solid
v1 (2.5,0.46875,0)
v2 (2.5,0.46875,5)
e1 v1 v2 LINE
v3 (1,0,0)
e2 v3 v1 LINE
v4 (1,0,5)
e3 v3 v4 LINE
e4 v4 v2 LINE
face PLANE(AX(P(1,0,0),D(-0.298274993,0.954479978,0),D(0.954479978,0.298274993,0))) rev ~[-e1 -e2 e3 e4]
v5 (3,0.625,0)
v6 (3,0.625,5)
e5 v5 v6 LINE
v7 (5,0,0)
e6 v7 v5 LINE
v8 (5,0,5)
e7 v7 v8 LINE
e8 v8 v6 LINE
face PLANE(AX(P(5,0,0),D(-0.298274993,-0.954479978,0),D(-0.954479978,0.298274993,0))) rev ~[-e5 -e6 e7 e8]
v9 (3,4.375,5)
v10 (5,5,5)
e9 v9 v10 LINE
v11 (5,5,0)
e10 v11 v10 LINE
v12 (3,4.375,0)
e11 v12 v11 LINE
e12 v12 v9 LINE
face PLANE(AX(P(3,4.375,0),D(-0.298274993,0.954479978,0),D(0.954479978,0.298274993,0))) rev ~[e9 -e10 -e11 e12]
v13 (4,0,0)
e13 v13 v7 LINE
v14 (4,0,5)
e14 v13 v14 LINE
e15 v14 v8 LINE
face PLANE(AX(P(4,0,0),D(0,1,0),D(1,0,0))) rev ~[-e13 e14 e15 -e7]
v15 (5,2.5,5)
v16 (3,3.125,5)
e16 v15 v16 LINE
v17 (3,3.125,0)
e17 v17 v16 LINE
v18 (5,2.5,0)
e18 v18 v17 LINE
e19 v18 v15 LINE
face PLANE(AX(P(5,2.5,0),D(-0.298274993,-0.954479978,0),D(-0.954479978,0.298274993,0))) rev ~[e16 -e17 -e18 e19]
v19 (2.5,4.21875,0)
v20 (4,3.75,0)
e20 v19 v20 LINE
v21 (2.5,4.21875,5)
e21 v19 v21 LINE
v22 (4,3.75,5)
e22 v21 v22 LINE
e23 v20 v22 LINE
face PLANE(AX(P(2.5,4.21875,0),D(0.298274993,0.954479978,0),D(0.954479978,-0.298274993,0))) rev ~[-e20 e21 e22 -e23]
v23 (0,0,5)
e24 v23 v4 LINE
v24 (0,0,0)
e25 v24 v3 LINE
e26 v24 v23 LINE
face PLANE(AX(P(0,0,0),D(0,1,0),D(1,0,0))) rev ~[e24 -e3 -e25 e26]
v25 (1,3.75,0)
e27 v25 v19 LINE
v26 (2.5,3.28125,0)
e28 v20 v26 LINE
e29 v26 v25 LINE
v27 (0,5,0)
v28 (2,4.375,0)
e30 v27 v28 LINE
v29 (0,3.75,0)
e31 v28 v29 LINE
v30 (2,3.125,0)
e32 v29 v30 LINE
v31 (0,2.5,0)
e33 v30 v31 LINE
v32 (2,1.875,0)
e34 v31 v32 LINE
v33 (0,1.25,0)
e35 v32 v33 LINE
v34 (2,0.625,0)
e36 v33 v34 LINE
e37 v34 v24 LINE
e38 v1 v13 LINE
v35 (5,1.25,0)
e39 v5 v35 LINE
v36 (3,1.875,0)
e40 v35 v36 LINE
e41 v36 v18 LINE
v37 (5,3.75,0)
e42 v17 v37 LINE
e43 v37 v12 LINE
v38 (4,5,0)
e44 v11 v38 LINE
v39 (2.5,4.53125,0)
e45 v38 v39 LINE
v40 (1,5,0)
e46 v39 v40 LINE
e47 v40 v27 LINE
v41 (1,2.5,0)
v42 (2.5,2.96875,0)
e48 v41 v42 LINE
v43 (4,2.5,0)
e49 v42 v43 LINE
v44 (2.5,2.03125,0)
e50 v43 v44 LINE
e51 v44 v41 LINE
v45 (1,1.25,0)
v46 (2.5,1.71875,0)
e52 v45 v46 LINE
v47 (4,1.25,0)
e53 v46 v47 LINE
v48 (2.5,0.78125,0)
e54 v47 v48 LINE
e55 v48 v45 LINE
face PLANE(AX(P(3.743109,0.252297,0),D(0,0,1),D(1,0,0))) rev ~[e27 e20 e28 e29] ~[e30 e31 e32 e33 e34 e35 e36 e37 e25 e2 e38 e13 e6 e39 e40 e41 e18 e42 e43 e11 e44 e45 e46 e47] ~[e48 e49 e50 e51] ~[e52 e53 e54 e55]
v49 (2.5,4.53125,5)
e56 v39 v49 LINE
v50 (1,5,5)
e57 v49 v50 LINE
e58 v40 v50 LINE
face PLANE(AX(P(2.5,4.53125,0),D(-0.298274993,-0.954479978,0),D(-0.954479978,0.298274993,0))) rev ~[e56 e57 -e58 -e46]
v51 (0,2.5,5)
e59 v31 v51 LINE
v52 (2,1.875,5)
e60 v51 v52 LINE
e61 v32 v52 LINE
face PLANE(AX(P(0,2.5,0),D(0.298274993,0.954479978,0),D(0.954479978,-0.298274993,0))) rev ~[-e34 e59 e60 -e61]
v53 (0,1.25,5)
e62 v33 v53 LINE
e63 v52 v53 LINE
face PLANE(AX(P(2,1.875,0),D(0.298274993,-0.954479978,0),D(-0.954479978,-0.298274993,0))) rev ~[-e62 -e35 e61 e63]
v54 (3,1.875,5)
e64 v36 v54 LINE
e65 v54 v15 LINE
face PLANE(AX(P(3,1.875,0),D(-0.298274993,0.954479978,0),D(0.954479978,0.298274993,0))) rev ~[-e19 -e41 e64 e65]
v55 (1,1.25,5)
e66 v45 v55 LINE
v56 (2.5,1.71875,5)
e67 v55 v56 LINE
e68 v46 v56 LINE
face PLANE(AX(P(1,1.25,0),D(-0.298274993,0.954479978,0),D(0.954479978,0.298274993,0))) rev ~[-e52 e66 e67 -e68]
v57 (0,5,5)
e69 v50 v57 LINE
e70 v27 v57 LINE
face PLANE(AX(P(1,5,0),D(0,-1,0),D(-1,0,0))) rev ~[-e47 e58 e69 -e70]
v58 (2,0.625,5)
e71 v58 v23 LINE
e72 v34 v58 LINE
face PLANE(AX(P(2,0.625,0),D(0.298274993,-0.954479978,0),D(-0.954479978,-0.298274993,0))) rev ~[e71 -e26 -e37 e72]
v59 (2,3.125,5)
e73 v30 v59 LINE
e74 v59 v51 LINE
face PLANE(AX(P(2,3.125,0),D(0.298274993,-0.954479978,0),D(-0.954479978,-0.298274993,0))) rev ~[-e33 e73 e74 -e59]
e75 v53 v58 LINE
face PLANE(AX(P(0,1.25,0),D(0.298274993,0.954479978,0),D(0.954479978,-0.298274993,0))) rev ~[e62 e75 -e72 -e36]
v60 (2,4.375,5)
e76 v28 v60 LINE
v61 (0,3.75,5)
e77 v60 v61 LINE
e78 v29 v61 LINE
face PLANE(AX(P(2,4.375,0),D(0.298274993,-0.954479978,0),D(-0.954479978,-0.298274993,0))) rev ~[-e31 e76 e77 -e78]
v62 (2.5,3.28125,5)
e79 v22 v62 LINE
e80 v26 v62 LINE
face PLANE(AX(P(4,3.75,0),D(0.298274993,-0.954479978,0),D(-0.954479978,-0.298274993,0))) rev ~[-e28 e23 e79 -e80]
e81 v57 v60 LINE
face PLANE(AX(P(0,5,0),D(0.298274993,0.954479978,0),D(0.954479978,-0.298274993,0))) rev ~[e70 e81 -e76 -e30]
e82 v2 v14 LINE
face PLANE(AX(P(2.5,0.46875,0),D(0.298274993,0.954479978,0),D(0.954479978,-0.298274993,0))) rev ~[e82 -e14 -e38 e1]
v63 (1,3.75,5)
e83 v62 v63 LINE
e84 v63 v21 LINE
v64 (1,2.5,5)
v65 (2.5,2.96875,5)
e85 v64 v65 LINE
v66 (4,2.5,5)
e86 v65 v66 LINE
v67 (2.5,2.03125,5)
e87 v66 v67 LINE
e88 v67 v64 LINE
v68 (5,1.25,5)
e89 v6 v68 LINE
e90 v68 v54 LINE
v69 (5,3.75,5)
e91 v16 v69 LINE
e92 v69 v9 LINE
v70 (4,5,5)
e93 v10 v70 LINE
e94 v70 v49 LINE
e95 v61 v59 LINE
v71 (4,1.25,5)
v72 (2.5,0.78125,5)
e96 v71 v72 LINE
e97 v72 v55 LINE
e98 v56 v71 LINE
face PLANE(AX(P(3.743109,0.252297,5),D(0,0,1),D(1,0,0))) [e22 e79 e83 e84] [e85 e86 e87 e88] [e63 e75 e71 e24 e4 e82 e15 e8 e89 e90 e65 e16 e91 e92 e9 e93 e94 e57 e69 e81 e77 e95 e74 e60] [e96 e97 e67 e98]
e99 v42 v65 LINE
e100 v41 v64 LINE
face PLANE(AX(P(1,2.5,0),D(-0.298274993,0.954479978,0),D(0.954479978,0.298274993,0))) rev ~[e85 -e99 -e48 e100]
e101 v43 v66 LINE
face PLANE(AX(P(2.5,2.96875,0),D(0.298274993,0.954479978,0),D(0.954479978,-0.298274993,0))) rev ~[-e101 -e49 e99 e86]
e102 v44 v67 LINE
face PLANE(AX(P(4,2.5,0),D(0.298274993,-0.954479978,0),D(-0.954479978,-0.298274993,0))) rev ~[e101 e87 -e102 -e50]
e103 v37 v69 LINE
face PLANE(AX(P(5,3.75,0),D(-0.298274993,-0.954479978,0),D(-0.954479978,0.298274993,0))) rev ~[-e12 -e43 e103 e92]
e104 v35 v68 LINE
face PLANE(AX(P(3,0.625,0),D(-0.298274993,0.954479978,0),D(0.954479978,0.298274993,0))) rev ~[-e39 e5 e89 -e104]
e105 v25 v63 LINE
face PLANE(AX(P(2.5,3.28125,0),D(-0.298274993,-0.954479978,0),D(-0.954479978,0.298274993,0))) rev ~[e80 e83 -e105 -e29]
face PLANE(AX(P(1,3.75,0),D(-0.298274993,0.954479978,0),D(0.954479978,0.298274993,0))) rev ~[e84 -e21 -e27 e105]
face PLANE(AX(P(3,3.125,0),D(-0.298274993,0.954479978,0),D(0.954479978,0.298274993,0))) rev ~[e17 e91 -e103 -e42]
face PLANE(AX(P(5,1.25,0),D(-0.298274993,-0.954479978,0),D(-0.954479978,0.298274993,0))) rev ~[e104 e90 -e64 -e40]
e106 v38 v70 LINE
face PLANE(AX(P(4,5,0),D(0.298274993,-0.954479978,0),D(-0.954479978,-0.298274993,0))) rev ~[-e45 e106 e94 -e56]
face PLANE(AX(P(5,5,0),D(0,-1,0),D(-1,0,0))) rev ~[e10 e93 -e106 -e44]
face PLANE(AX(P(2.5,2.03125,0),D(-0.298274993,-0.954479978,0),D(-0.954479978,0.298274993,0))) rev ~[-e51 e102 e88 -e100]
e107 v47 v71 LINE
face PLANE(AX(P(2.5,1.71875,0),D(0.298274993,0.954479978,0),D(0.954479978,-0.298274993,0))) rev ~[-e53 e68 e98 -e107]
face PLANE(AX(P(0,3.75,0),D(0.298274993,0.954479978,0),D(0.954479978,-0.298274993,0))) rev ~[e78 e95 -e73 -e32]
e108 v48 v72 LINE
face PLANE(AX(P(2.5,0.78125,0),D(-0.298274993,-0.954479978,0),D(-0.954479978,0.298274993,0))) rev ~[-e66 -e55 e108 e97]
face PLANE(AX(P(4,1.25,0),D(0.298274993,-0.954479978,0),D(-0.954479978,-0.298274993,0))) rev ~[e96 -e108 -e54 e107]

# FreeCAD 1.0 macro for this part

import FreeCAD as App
import Part
import Sketcher

V = App.Vector

doc = App.newDocument("Part")
params = doc.addObject("Spreadsheet::Sheet", "Params")
for row, (alias, value) in enumerate([
    ("sketch1_width", "1 mm"),
    ("pad1_length", "5 mm"),
], start=1):
    params.set(f"A{row}", alias)
    params.set(f"B{row}", "=" + value)
    params.setAlias(f"B{row}", alias)

body = doc.addObject("PartDesign::Body", "Body")

# Sketch on XY plane
sketch1 = body.newObject("Sketcher::SketchObject", "Sketch")
sketch1.AttachmentSupport = (doc.getObject("XY_Plane"), [""])
sketch1.MapMode = "FlatFace"
sketch1.addGeometry([
    Part.LineSegment(V(5, 3.8, 0), V(3, 4.4, 0)),  # 0
    Part.LineSegment(V(3, 4.4, 0), V(5, 5, 0)),  # 1
    Part.LineSegment(V(5, 5, 0), V(4, 5, 0)),  # 2
    Part.LineSegment(V(4, 5, 0), V(2.5, 4.5, 0)),  # 3
    Part.LineSegment(V(2.5, 4.5, 0), V(1, 5, 0)),  # 4
    Part.LineSegment(V(1, 5, 0), V(0, 5, 0)),  # 5
    Part.LineSegment(V(0, 5, 0), V(2, 4.4, 0)),  # 6
    Part.LineSegment(V(2, 4.4, 0), V(0, 3.8, 0)),  # 7
    Part.LineSegment(V(0, 3.8, 0), V(2, 3.1, 0)),  # 8
    Part.LineSegment(V(2, 3.1, 0), V(0, 2.5, 0)),  # 9
    Part.LineSegment(V(0, 2.5, 0), V(2, 1.9, 0)),  # 10
    Part.LineSegment(V(2, 1.9, 0), V(0, 1.2, 0)),  # 11
    Part.LineSegment(V(0, 1.2, 0), V(2, 0.6, 0)),  # 12
    Part.LineSegment(V(2, 0.6, 0), V(0, 0, 0)),  # 13
    Part.LineSegment(V(0, 0, 0), V(1, 0, 0)),  # 14
    Part.LineSegment(V(1, 0, 0), V(2.5, 0.5, 0)),  # 15
    Part.LineSegment(V(2.5, 0.5, 0), V(4, 0, 0)),  # 16
    Part.LineSegment(V(4, 0, 0), V(5, 0, 0)),  # 17
    Part.LineSegment(V(5, 0, 0), V(3, 0.6, 0)),  # 18
    Part.LineSegment(V(3, 0.6, 0), V(5, 1.2, 0)),  # 19
    Part.LineSegment(V(5, 1.2, 0), V(3, 1.9, 0)),  # 20
    Part.LineSegment(V(3, 1.9, 0), V(5, 2.5, 0)),  # 21
    Part.LineSegment(V(5, 2.5, 0), V(3, 3.1, 0)),  # 22
    Part.LineSegment(V(3, 3.1, 0), V(5, 3.8, 0)),  # 23
    Part.LineSegment(V(1, 1.2, 0), V(2.5, 1.7, 0)),  # 24
    Part.LineSegment(V(2.5, 1.7, 0), V(4, 1.2, 0)),  # 25
    Part.LineSegment(V(4, 1.2, 0), V(2.5, 0.8, 0)),  # 26
    Part.LineSegment(V(2.5, 0.8, 0), V(1, 1.2, 0)),  # 27
    Part.LineSegment(V(1, 2.5, 0), V(2.5, 3, 0)),  # 28
    Part.LineSegment(V(2.5, 3, 0), V(4, 2.5, 0)),  # 29
    Part.LineSegment(V(4, 2.5, 0), V(2.5, 2, 0)),  # 30
    Part.LineSegment(V(2.5, 2, 0), V(1, 2.5, 0)),  # 31
    Part.LineSegment(V(1, 3.8, 0), V(2.5, 4.2, 0)),  # 32
    Part.LineSegment(V(2.5, 4.2, 0), V(4, 3.8, 0)),  # 33
    Part.LineSegment(V(4, 3.8, 0), V(2.5, 3.3, 0)),  # 34
    Part.LineSegment(V(2.5, 3.3, 0), V(1, 3.8, 0)),  # 35
], False)
sketch1.addConstraint([
    Sketcher.Constraint("Coincident", 0, 2, 1, 1),
    Sketcher.Constraint("Coincident", 1, 2, 2, 1),
    Sketcher.Constraint("Coincident", 2, 2, 3, 1),
    Sketcher.Constraint("Coincident", 3, 2, 4, 1),
    Sketcher.Constraint("Coincident", 4, 2, 5, 1),
    Sketcher.Constraint("Coincident", 5, 2, 6, 1),
    Sketcher.Constraint("Coincident", 6, 2, 7, 1),
    Sketcher.Constraint("Coincident", 7, 2, 8, 1),
    Sketcher.Constraint("Coincident", 8, 2, 9, 1),
    Sketcher.Constraint("Coincident", 9, 2, 10, 1),
    Sketcher.Constraint("Coincident", 10, 2, 11, 1),
    Sketcher.Constraint("Coincident", 11, 2, 12, 1),
    Sketcher.Constraint("Coincident", 12, 2, 13, 1),
    Sketcher.Constraint("Coincident", 13, 2, 14, 1),
    Sketcher.Constraint("Coincident", 14, 2, 15, 1),
    Sketcher.Constraint("Coincident", 15, 2, 16, 1),
    Sketcher.Constraint("Coincident", 16, 2, 17, 1),
    Sketcher.Constraint("Coincident", 17, 2, 18, 1),
    Sketcher.Constraint("Coincident", 18, 2, 19, 1),
    Sketcher.Constraint("Coincident", 19, 2, 20, 1),
    Sketcher.Constraint("Coincident", 20, 2, 21, 1),
    Sketcher.Constraint("Coincident", 21, 2, 22, 1),
    Sketcher.Constraint("Coincident", 22, 2, 23, 1),
    Sketcher.Constraint("Coincident", 23, 2, 0, 1),
    Sketcher.Constraint("Coincident", 24, 2, 25, 1),
    Sketcher.Constraint("Coincident", 25, 2, 26, 1),
    Sketcher.Constraint("Coincident", 26, 2, 27, 1),
    Sketcher.Constraint("Coincident", 27, 2, 24, 1),
    Sketcher.Constraint("Coincident", 28, 2, 29, 1),
    Sketcher.Constraint("Coincident", 29, 2, 30, 1),
    Sketcher.Constraint("Coincident", 30, 2, 31, 1),
    Sketcher.Constraint("Coincident", 31, 2, 28, 1),
    Sketcher.Constraint("Coincident", 32, 2, 33, 1),
    Sketcher.Constraint("Coincident", 33, 2, 34, 1),
    Sketcher.Constraint("Coincident", 34, 2, 35, 1),
    Sketcher.Constraint("Coincident", 35, 2, 32, 1),
    Sketcher.Constraint("Horizontal", 2),
    Sketcher.Constraint("Horizontal", 5),
    Sketcher.Constraint("Horizontal", 14),
    Sketcher.Constraint("Horizontal", 17),
    Sketcher.Constraint("Coincident", 13, 2, -1, 1),
    Sketcher.Constraint("PointOnObject", 5, 2, -2),
    Sketcher.Constraint("PointOnObject", 7, 2, -2),
    Sketcher.Constraint("PointOnObject", 9, 2, -2),
    Sketcher.Constraint("PointOnObject", 11, 2, -2),
    Sketcher.Constraint("PointOnObject", 16, 2, -1),
    Sketcher.Constraint("Parallel", 1, 3),
    Sketcher.Constraint("Parallel", 0, 4),
    Sketcher.Constraint("Parallel", 4, 6),
    Sketcher.Constraint("Parallel", 3, 7),
    Sketcher.Constraint("Parallel", 6, 8),
    Sketcher.Constraint("Parallel", 7, 9),
    Sketcher.Constraint("Parallel", 8, 10),
    Sketcher.Constraint("Parallel", 9, 11),
    Sketcher.Constraint("Parallel", 10, 12),
    Sketcher.Constraint("Parallel", 11, 13),
    Sketcher.Constraint("Parallel", 13, 15),
    Sketcher.Constraint("Parallel", 12, 16),
    Sketcher.Constraint("Parallel", 16, 18),
    Sketcher.Constraint("Parallel", 15, 19),
    Sketcher.Constraint("Parallel", 18, 20),
    Sketcher.Constraint("Parallel", 19, 21),
    Sketcher.Constraint("Parallel", 20, 22),
    Sketcher.Constraint("Parallel", 21, 23),
    Sketcher.Constraint("Parallel", 23, 24),
    Sketcher.Constraint("Parallel", 22, 25),
    Sketcher.Constraint("Parallel", 24, 26),
    Sketcher.Constraint("Parallel", 25, 27),
    Sketcher.Constraint("Parallel", 26, 28),
    Sketcher.Constraint("Parallel", 27, 29),
    Sketcher.Constraint("Parallel", 28, 30),
    Sketcher.Constraint("Parallel", 29, 31),
    Sketcher.Constraint("Parallel", 30, 32),
    Sketcher.Constraint("Parallel", 31, 33),
    Sketcher.Constraint("Parallel", 32, 34),
    Sketcher.Constraint("Parallel", 33, 35),
    Sketcher.Constraint("Horizontal", 2, 2, 4, 2),
    Sketcher.Constraint("Horizontal", 0, 2, 6, 2),
    Sketcher.Constraint("Horizontal", 12, 2, 18, 2),
    Sketcher.Constraint("Horizontal", 11, 2, 19, 2),
    Sketcher.Constraint("Horizontal", 10, 2, 20, 2),
    Sketcher.Constraint("Horizontal", 9, 2, 21, 2),
    Sketcher.Constraint("Horizontal", 8, 2, 22, 2),
    Sketcher.Constraint("Horizontal", 7, 2, 23, 2),
    Sketcher.Constraint("Horizontal", 19, 2, 25, 2),
    Sketcher.Constraint("Horizontal", 25, 2, 27, 2),
    Sketcher.Constraint("Horizontal", 21, 2, 29, 2),
    Sketcher.Constraint("Horizontal", 29, 2, 31, 2),
    Sketcher.Constraint("Horizontal", 23, 2, 33, 2),
    Sketcher.Constraint("Horizontal", 33, 2, 35, 2),
    Sketcher.Constraint("Vertical", 6, 2, 8, 2),
    Sketcher.Constraint("Vertical", 8, 2, 10, 2),
    Sketcher.Constraint("Vertical", 10, 2, 12, 2),
    Sketcher.Constraint("Vertical", 4, 2, 14, 2),
    Sketcher.Constraint("Vertical", 3, 2, 15, 2),
    Sketcher.Constraint("Vertical", 2, 2, 16, 2),
    Sketcher.Constraint("Vertical", 15, 2, 24, 2),
    Sketcher.Constraint("Vertical", 16, 2, 25, 2),
    Sketcher.Constraint("Vertical", 26, 2, 28, 2),
    Sketcher.Constraint("Vertical", 25, 2, 29, 2),
    Sketcher.Constraint("Vertical", 30, 2, 32, 2),
    Sketcher.Constraint("Vertical", 29, 2, 33, 2),
    Sketcher.Constraint("Equal", 2, 5),
    Sketcher.Constraint("DistanceX", 2, 2, 2, 1, 1.0),
    Sketcher.Constraint("DistanceX", -1, 1, 0, 2, 3.0),
    Sketcher.Constraint("DistanceX", -1, 1, 1, 2, 5.0),
    Sketcher.Constraint("DistanceY", -1, 1, 1, 2, 5.0),
])
sketch1.setExpression("Constraints[103]", "Params.sketch1_width")
pad1 = body.newObject("PartDesign::Pad", "Pad")
pad1.Profile = sketch1
pad1.setExpression("Length", "Params.pad1_length")

doc.recompute()
